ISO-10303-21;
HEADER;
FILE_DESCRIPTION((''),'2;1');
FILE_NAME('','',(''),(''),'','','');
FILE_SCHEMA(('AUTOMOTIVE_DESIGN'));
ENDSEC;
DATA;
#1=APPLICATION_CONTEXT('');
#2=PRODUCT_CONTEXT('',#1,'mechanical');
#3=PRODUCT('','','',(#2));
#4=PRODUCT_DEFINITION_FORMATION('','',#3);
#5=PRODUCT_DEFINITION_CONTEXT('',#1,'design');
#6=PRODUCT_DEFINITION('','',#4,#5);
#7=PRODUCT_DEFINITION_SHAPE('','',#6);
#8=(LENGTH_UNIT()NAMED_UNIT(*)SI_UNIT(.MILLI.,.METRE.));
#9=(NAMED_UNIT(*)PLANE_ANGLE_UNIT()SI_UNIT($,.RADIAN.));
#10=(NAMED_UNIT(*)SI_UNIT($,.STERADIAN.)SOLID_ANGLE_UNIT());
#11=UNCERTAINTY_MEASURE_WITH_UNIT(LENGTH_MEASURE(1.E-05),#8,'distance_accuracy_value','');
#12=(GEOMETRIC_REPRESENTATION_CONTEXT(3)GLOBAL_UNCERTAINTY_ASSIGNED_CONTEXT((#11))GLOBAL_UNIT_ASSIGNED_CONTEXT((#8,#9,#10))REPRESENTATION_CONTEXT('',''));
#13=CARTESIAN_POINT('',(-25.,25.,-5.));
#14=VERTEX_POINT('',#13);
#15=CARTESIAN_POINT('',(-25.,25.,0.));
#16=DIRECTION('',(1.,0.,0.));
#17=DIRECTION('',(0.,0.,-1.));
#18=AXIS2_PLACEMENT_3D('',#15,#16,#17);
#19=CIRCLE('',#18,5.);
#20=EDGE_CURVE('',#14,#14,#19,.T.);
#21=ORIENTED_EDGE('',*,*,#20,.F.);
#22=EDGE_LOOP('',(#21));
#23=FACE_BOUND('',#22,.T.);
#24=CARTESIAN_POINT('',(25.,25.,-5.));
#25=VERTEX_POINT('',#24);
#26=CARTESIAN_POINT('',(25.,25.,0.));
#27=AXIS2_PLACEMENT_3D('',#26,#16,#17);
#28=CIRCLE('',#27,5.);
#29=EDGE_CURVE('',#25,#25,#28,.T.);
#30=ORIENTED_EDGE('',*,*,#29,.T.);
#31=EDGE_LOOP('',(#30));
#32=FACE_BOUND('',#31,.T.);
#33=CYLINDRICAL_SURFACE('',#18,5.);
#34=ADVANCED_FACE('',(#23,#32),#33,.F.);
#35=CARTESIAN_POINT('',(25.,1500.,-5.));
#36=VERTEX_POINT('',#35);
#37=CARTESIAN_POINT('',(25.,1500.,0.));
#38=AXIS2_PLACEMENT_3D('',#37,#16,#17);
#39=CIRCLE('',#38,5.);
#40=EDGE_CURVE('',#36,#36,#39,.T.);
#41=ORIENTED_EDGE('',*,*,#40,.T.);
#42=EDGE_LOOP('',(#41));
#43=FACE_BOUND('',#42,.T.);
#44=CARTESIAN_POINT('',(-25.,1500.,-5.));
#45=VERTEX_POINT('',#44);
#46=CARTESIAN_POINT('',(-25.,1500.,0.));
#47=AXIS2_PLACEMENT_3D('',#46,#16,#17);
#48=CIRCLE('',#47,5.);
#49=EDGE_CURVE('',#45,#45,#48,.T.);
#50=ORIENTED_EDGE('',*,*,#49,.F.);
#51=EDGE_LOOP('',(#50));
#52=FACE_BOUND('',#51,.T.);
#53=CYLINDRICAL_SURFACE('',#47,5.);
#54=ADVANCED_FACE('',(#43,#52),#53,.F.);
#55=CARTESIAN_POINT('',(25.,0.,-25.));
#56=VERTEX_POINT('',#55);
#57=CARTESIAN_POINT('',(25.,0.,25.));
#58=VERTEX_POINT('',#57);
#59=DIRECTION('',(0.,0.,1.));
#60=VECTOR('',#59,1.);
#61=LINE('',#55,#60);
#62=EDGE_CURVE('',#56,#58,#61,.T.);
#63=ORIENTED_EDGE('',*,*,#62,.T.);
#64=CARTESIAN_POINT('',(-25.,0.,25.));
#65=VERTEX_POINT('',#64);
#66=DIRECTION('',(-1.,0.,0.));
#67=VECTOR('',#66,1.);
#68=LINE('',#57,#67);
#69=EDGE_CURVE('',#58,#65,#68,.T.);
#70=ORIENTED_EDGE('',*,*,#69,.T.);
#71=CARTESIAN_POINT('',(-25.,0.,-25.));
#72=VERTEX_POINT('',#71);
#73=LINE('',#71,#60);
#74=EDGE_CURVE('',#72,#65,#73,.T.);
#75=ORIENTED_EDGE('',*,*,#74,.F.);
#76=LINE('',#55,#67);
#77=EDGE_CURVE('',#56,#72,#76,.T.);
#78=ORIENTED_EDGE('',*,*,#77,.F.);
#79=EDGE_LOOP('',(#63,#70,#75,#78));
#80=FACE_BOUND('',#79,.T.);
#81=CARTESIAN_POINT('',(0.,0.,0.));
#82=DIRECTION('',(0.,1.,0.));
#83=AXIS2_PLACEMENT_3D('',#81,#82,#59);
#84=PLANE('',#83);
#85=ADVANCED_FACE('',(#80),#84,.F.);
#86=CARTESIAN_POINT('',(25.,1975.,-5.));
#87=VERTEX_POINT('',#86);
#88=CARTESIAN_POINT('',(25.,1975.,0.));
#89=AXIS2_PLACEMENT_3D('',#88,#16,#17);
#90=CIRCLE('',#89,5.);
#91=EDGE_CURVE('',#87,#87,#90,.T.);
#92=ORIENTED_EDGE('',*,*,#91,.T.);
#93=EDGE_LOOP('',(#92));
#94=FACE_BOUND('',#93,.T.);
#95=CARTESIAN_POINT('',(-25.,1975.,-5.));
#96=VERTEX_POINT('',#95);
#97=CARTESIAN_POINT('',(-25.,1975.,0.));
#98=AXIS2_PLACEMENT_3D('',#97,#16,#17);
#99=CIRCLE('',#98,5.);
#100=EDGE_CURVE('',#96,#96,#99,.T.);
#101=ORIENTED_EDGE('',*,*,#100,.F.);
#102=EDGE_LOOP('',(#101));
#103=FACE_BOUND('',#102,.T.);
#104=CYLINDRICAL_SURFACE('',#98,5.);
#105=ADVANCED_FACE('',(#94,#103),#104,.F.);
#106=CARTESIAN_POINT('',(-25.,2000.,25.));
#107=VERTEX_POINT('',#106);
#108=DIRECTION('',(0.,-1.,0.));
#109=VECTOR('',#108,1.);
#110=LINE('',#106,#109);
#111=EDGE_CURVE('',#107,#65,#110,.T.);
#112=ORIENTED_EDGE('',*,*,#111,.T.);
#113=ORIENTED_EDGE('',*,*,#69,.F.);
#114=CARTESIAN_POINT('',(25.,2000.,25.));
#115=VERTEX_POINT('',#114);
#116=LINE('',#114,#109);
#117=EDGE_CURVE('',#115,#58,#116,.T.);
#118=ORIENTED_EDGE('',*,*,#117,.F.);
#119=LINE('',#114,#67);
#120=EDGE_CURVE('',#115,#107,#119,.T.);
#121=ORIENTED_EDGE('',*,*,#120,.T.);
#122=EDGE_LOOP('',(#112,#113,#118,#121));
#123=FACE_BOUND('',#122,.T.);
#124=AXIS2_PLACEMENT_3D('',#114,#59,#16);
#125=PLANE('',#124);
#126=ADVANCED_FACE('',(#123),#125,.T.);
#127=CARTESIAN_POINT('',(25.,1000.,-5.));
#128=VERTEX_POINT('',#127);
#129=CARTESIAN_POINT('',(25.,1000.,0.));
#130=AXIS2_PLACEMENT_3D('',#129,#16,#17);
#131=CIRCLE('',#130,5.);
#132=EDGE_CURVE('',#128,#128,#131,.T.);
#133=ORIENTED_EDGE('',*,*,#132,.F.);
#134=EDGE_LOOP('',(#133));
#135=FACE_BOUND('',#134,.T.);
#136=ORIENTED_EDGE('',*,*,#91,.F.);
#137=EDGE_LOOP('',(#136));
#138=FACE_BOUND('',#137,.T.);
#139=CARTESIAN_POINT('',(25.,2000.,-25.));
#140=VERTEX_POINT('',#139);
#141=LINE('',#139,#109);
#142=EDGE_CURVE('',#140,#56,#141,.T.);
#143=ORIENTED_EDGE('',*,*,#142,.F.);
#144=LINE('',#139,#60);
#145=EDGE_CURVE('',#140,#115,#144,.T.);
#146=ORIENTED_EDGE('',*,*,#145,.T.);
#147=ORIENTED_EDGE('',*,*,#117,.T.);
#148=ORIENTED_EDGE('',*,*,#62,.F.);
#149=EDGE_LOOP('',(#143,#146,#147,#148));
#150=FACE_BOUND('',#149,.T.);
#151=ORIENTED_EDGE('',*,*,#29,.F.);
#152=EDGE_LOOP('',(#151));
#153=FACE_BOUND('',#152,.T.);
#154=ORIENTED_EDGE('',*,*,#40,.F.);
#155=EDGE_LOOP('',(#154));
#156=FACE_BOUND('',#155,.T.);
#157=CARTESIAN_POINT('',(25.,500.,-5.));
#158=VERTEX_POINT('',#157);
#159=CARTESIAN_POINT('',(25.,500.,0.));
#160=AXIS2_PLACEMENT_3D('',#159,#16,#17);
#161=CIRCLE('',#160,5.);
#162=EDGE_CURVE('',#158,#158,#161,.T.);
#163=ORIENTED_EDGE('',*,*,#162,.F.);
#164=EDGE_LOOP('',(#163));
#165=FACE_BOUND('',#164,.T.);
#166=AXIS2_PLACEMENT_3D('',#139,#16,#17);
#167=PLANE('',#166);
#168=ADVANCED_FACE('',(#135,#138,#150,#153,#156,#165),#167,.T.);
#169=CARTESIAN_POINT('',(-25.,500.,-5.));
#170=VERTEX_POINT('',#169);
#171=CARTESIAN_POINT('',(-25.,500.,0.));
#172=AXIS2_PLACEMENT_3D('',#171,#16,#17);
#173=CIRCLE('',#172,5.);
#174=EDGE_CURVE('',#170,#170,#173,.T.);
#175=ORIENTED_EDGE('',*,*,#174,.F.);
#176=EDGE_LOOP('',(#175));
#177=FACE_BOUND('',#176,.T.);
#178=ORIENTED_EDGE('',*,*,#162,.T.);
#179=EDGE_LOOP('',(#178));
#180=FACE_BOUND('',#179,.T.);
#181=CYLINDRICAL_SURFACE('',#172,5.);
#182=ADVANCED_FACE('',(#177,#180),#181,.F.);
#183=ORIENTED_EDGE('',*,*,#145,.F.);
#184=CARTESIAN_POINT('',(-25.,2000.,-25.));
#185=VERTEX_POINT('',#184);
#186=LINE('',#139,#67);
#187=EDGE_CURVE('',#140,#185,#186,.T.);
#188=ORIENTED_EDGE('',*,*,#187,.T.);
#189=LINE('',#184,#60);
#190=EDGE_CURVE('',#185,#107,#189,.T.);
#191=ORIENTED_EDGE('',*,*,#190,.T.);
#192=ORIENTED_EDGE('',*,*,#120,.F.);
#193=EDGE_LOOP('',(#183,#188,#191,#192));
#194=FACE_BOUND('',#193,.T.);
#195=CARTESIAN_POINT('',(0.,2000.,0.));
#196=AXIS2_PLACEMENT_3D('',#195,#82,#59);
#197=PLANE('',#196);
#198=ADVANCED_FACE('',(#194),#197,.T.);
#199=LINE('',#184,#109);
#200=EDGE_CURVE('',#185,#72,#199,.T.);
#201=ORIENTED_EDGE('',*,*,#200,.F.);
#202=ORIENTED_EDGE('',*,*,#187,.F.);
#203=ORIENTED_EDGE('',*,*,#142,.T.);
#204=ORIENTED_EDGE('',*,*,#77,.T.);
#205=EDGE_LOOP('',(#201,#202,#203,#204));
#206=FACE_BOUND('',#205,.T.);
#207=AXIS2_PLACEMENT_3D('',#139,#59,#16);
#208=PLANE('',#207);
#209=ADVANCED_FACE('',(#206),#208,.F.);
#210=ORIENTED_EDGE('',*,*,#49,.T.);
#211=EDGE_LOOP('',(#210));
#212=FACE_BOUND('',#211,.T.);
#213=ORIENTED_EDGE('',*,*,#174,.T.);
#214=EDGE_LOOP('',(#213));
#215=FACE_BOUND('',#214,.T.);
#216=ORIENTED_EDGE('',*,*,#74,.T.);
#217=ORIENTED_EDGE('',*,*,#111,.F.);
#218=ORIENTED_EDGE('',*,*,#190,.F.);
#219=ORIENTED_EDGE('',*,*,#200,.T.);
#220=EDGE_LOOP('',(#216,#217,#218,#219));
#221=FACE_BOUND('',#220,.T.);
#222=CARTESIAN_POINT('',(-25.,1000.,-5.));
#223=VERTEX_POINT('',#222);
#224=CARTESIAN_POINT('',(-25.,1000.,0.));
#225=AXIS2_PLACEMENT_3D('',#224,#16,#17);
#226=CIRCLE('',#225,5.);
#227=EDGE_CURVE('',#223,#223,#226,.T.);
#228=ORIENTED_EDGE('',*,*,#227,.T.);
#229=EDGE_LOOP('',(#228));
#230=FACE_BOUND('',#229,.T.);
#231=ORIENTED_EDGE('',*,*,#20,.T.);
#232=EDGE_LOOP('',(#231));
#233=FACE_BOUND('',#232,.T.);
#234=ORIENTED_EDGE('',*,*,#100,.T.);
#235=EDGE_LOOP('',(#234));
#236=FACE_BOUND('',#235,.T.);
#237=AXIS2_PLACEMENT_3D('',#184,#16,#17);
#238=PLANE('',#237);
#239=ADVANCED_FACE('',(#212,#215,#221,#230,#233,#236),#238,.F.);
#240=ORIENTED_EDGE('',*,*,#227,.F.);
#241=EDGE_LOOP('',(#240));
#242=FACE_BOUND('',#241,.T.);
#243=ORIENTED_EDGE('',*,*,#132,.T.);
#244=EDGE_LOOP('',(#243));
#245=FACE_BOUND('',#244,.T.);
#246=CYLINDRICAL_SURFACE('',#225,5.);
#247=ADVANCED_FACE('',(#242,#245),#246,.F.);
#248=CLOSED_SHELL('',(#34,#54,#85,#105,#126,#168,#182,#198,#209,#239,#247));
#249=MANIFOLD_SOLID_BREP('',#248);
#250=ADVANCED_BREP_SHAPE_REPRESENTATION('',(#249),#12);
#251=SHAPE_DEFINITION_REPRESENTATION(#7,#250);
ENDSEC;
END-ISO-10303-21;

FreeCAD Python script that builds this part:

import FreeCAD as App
import Part
import Sketcher

V = App.Vector

doc = App.newDocument("Part")
body = doc.addObject("PartDesign::Body", "Body")

# Sketch on XZ plane
sketch1 = body.newObject("Sketcher::SketchObject", "Sketch")
sketch1.AttachmentSupport = (doc.getObject("XZ_Plane"), [""])
sketch1.MapMode = "FlatFace"
sketch1.addGeometry(Part.LineSegment(V(-25, -25, 0), V(-25, 25, 0)), False)
sketch1.addGeometry(Part.LineSegment(V(-25, 25, 0), V(25, 25, 0)), False)
sketch1.addGeometry(Part.LineSegment(V(25, 25, 0), V(25, -25, 0)), False)
sketch1.addGeometry(Part.LineSegment(V(25, -25, 0), V(-25, -25, 0)), False)
sketch1.addConstraint(Sketcher.Constraint("Coincident", 0, 2, 1, 1))
sketch1.addConstraint(Sketcher.Constraint("Coincident", 1, 2, 2, 1))
sketch1.addConstraint(Sketcher.Constraint("Coincident", 2, 2, 3, 1))
sketch1.addConstraint(Sketcher.Constraint("Coincident", 3, 2, 0, 1))
sketch1.addConstraint(Sketcher.Constraint("Vertical", 0))
sketch1.addConstraint(Sketcher.Constraint("Horizontal", 1))
sketch1.addConstraint(Sketcher.Constraint("Vertical", 2))
sketch1.addConstraint(Sketcher.Constraint("Horizontal", 3))
sketch1.addConstraint(Sketcher.Constraint("Symmetric", 0, 2, 2, 2, -1, 1))
sketch1.addConstraint(Sketcher.Constraint("Equal", 3, 0))
sketch1.addConstraint(Sketcher.Constraint("DistanceX", 1, 1, 1, 2, 50.0))
pad1 = body.newObject("PartDesign::Pad", "Pad")
pad1.Profile = sketch1
pad1.Length = 2000
pad1.Reversed = True

# Sketch on YZ plane
sketch2 = body.newObject("Sketcher::SketchObject", "Sketch001")
sketch2.AttachmentSupport = (doc.getObject("YZ_Plane"), [""])
sketch2.MapMode = "FlatFace"
sketch2.AttachmentOffset = App.Placement(V(0, 0, 25), App.Rotation())
sketch2.addGeometry(Part.Circle(V(1975, 0, 0), V(0, 0, 1), 5), False)
sketch2.addGeometry(Part.Circle(V(25, 0, 0), V(0, 0, 1), 5), False)
sketch2.addConstraint(Sketcher.Constraint("Equal", 0, 1))
sketch2.addConstraint(Sketcher.Constraint("PointOnObject", 0, 3, -1))
sketch2.addConstraint(Sketcher.Constraint("PointOnObject", 1, 3, -1))
sketch2.addConstraint(Sketcher.Constraint("Diameter", 0, 10.0))
sketch2.addConstraint(Sketcher.Constraint("DistanceX", -1, 1, 0, 3, 1975.0))
sketch2.addConstraint(Sketcher.Constraint("DistanceX", -1, 1, 1, 3, 25.0))
pocket1 = body.newObject("PartDesign::Pocket", "Pocket")
pocket1.Profile = sketch2
pocket1.Type = "ThroughAll"

# Sketch on YZ plane
sketch3 = body.newObject("Sketcher::SketchObject", "Sketch002")
sketch3.AttachmentSupport = (doc.getObject("YZ_Plane"), [""])
sketch3.MapMode = "FlatFace"
sketch3.AttachmentOffset = App.Placement(V(0, 0, 25), App.Rotation())
sketch3.addGeometry(Part.Circle(V(1000, 0, 0), V(0, 0, 1), 5), False)
sketch3.addConstraint(Sketcher.Constraint("PointOnObject", 0, 3, -1))
sketch3.addConstraint(Sketcher.Constraint("Diameter", 0, 10.0))
sketch3.addConstraint(Sketcher.Constraint("DistanceX", -1, 1, 0, 3, 1000.0))
pocket2 = body.newObject("PartDesign::Pocket", "Pocket001")
pocket2.Profile = sketch3
pocket2.Type = "ThroughAll"

# Sketch on YZ plane
sketch4 = body.newObject("Sketcher::SketchObject", "Sketch003")
sketch4.AttachmentSupport = (doc.getObject("YZ_Plane"), [""])
sketch4.MapMode = "FlatFace"
sketch4.AttachmentOffset = App.Placement(V(0, 0, 25), App.Rotation())
sketch4.addGeometry(Part.Circle(V(1500, 0, 0), V(0, 0, 1), 5), False)
sketch4.addGeometry(Part.Circle(V(500, 0, 0), V(0, 0, 1), 5), False)
sketch4.addConstraint(Sketcher.Constraint("Equal", 0, 1))
sketch4.addConstraint(Sketcher.Constraint("PointOnObject", 0, 3, -1))
sketch4.addConstraint(Sketcher.Constraint("PointOnObject", 1, 3, -1))
sketch4.addConstraint(Sketcher.Constraint("Diameter", 0, 10.0))
sketch4.addConstraint(Sketcher.Constraint("DistanceX", -1, 1, 0, 3, 1500.0))
sketch4.addConstraint(Sketcher.Constraint("DistanceX", -1, 1, 1, 3, 500.0))
pocket3 = body.newObject("PartDesign::Pocket", "Pocket002")
pocket3.Profile = sketch4
pocket3.Type = "ThroughAll"

doc.recompute()
